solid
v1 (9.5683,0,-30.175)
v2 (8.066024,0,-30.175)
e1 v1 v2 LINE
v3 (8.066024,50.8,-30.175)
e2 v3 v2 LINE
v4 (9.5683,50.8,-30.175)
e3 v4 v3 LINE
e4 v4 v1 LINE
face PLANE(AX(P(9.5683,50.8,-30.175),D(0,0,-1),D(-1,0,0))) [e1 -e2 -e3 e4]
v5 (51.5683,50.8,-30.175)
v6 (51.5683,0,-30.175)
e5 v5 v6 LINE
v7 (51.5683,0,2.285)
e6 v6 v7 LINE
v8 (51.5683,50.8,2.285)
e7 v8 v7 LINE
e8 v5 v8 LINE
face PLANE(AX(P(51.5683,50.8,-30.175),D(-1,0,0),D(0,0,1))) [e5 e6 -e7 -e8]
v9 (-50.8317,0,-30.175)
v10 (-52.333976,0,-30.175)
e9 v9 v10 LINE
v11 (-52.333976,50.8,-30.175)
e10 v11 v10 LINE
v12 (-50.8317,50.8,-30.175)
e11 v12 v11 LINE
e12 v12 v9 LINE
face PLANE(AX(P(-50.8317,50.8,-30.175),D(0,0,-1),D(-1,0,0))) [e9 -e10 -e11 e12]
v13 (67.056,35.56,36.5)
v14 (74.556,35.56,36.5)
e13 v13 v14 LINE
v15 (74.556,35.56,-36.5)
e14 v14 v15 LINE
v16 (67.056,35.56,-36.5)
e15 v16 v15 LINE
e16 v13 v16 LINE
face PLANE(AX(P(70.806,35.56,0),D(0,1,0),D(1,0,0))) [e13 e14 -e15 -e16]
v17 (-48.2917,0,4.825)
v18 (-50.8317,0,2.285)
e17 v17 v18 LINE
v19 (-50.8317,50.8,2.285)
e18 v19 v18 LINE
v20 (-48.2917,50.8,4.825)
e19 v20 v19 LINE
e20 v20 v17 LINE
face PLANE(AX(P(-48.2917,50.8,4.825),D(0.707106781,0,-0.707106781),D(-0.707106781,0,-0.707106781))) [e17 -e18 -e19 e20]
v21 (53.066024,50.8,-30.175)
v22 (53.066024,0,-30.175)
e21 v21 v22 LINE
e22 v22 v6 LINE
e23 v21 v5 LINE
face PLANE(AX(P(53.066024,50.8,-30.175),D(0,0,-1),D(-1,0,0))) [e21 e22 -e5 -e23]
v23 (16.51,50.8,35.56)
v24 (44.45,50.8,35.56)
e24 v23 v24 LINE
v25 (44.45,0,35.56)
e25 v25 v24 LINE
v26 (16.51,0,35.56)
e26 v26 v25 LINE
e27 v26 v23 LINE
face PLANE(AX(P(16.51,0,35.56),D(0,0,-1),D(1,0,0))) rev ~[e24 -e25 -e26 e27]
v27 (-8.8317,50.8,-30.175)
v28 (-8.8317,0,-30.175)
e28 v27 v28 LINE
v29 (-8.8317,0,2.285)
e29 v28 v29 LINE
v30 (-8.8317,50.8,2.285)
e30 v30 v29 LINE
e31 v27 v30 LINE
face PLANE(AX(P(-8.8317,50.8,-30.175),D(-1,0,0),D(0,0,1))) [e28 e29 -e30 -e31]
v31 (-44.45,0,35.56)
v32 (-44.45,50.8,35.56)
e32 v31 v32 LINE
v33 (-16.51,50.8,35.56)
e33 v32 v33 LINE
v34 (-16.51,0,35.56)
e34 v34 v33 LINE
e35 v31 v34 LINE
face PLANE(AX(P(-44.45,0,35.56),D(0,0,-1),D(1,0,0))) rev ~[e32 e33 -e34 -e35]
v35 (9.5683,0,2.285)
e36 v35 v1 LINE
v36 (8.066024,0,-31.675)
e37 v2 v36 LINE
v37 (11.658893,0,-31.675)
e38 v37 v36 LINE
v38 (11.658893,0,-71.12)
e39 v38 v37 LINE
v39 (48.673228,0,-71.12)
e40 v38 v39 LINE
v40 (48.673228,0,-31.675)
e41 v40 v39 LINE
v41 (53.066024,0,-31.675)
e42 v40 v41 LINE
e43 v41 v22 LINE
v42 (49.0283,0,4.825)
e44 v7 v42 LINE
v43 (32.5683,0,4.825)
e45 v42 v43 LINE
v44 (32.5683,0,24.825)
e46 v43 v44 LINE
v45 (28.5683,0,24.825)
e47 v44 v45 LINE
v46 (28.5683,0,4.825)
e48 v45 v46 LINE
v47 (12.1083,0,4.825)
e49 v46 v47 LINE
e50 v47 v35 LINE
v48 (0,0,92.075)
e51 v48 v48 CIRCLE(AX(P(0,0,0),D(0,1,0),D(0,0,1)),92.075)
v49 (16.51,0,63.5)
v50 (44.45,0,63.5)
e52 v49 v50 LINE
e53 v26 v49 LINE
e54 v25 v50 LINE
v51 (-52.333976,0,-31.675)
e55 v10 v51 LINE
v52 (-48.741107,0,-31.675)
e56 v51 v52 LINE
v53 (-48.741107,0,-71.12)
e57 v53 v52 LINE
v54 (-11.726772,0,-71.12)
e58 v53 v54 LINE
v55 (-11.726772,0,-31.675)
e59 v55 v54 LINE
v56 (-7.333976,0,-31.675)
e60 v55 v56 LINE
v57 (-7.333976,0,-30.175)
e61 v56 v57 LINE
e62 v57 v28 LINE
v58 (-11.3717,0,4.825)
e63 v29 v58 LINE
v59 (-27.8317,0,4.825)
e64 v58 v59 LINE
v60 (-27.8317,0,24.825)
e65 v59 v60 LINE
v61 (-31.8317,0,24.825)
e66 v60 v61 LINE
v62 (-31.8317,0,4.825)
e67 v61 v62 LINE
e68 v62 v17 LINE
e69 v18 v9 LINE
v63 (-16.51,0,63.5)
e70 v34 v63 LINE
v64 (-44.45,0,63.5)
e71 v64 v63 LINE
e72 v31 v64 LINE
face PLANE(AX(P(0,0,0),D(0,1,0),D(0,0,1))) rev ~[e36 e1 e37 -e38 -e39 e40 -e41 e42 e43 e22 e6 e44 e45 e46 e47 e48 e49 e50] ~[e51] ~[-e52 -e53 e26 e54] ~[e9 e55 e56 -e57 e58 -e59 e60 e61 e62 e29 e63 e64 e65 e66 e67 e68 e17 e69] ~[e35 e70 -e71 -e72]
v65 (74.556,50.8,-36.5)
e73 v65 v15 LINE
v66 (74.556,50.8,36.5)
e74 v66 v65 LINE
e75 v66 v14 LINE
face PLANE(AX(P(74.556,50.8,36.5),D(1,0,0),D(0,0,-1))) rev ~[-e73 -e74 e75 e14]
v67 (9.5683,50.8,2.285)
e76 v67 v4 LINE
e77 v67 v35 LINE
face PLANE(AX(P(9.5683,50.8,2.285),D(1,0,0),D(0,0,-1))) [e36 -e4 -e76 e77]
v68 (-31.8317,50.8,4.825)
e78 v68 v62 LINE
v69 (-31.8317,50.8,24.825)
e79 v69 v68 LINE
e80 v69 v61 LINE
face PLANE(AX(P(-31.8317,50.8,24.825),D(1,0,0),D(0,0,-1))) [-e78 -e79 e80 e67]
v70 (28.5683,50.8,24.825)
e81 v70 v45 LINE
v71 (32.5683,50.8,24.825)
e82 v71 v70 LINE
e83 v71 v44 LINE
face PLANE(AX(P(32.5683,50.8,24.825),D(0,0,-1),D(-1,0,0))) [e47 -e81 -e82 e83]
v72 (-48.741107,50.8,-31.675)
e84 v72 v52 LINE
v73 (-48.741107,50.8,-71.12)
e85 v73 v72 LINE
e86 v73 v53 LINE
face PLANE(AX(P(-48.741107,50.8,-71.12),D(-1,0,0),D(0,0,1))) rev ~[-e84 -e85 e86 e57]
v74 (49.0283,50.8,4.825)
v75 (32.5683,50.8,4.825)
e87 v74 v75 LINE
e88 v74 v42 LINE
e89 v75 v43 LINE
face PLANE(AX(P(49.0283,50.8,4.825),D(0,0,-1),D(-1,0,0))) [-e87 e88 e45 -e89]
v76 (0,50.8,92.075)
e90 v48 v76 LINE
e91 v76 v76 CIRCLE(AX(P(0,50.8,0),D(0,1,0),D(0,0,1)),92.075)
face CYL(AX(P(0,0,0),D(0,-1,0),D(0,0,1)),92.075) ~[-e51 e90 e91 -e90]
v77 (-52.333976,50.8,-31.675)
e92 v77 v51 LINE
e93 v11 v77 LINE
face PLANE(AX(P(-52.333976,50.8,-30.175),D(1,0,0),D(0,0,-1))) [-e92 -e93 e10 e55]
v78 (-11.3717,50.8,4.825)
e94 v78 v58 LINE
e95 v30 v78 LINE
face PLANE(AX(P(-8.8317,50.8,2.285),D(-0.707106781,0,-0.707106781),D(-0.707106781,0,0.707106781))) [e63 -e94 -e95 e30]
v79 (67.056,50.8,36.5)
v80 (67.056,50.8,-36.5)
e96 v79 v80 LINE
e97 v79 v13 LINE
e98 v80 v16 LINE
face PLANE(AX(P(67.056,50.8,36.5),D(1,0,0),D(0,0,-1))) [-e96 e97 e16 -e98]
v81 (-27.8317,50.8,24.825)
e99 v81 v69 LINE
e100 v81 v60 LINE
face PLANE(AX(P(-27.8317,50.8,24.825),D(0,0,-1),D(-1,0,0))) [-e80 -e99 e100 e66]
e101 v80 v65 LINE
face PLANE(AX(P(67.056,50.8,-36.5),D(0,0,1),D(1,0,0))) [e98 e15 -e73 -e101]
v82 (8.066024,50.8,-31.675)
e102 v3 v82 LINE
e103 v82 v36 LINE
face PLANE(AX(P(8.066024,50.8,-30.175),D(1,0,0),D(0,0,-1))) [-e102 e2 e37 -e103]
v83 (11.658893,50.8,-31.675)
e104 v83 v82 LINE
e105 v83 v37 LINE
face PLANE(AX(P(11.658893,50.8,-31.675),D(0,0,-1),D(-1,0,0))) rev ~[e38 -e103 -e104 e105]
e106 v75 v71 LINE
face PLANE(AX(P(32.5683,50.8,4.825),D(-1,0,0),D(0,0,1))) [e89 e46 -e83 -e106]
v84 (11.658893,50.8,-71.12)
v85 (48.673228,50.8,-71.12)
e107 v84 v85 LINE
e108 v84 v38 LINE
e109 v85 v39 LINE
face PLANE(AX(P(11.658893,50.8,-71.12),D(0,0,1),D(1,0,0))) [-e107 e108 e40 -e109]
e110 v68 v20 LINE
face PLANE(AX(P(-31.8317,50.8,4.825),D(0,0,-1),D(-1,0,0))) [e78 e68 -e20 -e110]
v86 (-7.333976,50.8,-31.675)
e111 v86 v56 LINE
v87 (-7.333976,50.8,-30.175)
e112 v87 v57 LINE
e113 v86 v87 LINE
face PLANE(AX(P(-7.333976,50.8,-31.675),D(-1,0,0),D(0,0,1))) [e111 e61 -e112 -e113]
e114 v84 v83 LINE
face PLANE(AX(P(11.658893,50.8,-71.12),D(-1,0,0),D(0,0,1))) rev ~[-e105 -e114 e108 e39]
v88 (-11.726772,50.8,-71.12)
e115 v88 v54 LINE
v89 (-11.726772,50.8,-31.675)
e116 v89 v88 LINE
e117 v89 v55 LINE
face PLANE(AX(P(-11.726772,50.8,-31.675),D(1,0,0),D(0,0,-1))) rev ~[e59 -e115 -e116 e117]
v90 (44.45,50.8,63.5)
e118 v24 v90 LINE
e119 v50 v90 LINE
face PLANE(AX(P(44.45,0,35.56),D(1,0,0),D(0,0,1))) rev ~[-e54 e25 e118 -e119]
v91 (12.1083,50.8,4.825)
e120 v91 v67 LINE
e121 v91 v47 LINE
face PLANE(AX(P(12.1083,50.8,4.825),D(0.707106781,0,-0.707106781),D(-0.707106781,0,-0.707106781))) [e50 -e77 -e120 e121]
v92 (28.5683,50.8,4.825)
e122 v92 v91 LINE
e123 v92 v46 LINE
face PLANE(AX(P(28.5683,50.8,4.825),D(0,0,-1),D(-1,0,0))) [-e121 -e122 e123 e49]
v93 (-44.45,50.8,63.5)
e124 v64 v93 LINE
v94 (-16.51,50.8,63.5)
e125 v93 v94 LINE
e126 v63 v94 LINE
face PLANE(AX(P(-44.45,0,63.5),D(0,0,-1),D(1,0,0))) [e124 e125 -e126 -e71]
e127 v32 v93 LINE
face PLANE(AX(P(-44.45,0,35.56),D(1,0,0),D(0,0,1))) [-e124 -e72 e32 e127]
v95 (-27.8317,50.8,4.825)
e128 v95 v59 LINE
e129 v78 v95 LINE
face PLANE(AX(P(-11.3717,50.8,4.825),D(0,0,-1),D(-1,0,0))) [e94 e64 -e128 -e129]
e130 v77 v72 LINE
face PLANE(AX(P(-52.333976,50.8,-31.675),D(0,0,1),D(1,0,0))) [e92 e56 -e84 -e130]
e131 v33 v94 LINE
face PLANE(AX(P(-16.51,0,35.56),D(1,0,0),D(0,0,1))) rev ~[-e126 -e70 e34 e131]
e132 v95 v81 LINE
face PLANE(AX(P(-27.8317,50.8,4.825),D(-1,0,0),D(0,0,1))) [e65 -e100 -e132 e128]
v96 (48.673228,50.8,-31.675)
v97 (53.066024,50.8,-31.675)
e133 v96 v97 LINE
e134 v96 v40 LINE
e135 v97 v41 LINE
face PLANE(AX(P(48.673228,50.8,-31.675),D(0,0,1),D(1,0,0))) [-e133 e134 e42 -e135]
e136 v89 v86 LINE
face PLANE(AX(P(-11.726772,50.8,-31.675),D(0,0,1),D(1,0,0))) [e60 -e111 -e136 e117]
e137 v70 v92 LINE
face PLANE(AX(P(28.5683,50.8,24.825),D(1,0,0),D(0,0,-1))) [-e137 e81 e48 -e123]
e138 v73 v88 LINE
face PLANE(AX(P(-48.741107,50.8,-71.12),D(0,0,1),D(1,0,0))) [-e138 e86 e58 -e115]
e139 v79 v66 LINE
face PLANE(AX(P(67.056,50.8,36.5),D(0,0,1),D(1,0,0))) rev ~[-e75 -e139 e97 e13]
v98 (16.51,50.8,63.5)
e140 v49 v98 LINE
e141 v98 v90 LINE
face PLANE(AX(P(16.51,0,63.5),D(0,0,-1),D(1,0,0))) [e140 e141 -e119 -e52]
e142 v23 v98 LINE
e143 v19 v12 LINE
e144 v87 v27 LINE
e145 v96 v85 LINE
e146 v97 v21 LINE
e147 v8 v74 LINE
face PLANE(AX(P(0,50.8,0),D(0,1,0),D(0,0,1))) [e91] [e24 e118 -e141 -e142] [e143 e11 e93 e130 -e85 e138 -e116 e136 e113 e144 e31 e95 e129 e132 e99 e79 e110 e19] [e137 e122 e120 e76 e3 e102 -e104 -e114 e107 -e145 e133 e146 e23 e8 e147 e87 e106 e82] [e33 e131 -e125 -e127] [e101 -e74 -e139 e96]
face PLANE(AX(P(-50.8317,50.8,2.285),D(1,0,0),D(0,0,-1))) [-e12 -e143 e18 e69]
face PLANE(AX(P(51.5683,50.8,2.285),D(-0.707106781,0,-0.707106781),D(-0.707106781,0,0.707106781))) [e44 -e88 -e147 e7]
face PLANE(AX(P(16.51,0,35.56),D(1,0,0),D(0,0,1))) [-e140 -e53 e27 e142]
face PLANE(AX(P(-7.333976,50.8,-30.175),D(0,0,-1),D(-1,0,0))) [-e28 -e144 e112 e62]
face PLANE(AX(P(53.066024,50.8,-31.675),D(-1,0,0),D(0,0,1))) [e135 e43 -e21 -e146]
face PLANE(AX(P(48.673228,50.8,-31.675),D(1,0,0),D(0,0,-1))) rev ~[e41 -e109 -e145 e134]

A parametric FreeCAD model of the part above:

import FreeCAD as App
import Part
import Sketcher
from FreeCAD import Vector
Q = App.Units.Quantity


def add_polygon(sketch, points):
    """Adds a closed chain of lines whose ends are joined by coincident constraints."""
    first, n = sketch.GeometryCount, len(points)
    for a, b in zip(points, points[1:] + points[:1]):
        sketch.addGeometry(Part.LineSegment(App.Vector(*a, 0), App.Vector(*b, 0)), False)
    for i in range(n):
        sketch.addConstraint(Sketcher.Constraint("Coincident", first + i, 2, first + (i + 1) % n, 1))

doc = App.newDocument("Part")
params = doc.addObject("Spreadsheet::Sheet", "Params")
for row, (alias, value) in enumerate([
    ("sketch1_diameter", "184.15 mm"),
    ("pad1_length", "50.8 mm"),
    ("sketch2_width", "27.94 mm"),
    ("pocket1_length", "50.8 mm"),
    ("sketch3_width", "4 mm"),
    ("sketch3_height", "20 mm"),
    ("sketch3_height2", "1.5 mm"),
    ("sketch3_width2", "16.46 mm"),
    ("pocket2_length", "50.8 mm"),
    ("sketch4_height", "73 mm"),
    ("sketch4_width", "7.5 mm"),
    ("pocket3_length", "15.24 mm"),
], start=1):
    params.set(f"A{row}", alias)
    params.set(f"B{row}", "=" + value)
    params.setAlias(f"B{row}", alias)

body = doc.addObject("PartDesign::Body", "Body")

sketch1 = body.newObject("Sketcher::SketchObject", "Sketch")
sketch1.AttachmentSupport = (doc.getObject("XZ_Plane"), [""])
sketch1.MapMode = "FlatFace"
sketch1.addGeometry(Part.Circle(Vector(0, 0, 0), Vector(0, 0, 1), 92), False)
sketch1.addConstraint([
    Sketcher.Constraint("Coincident", 0, 3, -1, 1),
    Sketcher.Constraint("Diameter", 0, Q("184.15 mm")),
])
sketch1.setExpression("Constraints[1]", "Params.sketch1_diameter")
pad1 = body.newObject("PartDesign::Pad", "Pad")
pad1.Profile = sketch1
pad1.setExpression("Length", "Params.pad1_length")
pad1.Reversed = True

sketch2 = body.newObject("Sketcher::SketchObject", "Sketch001")
sketch2.AttachmentSupport = (doc.getObject("XZ_Plane"), [""])
sketch2.MapMode = "FlatFace"
add_polygon(sketch2, [(17, 64), (17, 36), (44, 36), (44, 64)])
add_polygon(sketch2, [(-44, 64), (-44, 36), (-17, 36), (-17, 64)])
sketch2.addConstraint([
    Sketcher.Constraint("Vertical", 0),
    Sketcher.Constraint("Horizontal", 1),
    Sketcher.Constraint("Vertical", 2),
    Sketcher.Constraint("Horizontal", 3),
    Sketcher.Constraint("Vertical", 4),
    Sketcher.Constraint("Horizontal", 5),
    Sketcher.Constraint("Vertical", 6),
    Sketcher.Constraint("Horizontal", 7),
    Sketcher.Constraint("Symmetric", 1, 2, 4, 2, -2),
    Sketcher.Constraint("Symmetric", 3, 2, 6, 2, -2),
    Sketcher.Constraint("Equal", 7, 0),
    Sketcher.Constraint("DistanceX", 1, 1, 1, 2, Q("27.94 mm")),
    Sketcher.Constraint("DistanceY", -1, 1, 2, 2, Q("63.5 mm")),
    Sketcher.Constraint("DistanceX", 4, 2, 1, 2, Q("88.9 mm")),
])
sketch2.setExpression("Constraints[19]", "Params.sketch2_width")
pocket1 = body.newObject("PartDesign::Pocket", "Pocket")
pocket1.Profile = sketch2
pocket1.setExpression("Length", "Params.pocket1_length")

sketch3 = body.newObject("Sketcher::SketchObject", "Sketch002")
sketch3.AttachmentSupport = (doc.getObject("XZ_Plane"), [""])
sketch3.MapMode = "FlatFace"
sketch3.AttachmentOffset = App.Placement(Vector(0, 0, -50.8), App.Rotation())
add_polygon(sketch3, [(48.7, -31.7), (48.7, -71.1), (11.7, -71.1), (11.7, -31.7), (8.1, -31.7), (8.1, -30.2), (9.6, -30.2), (9.6, 2.3), (12.1, 4.8), (28.6, 4.8), (28.6, 24.8), (32.6, 24.8), (32.6, 4.8), (49, 4.8), (51.6, 2.3), (51.6, -30.2), (53.1, -30.2), (53.1, -31.7)])
add_polygon(sketch3, [(-11.4, 4.8), (-8.8, 2.3), (-8.8, -30.2), (-7.3, -30.2), (-7.3, -31.7), (-11.7, -31.7), (-11.7, -71.1), (-48.7, -71.1), (-48.7, -31.7), (-52.3, -31.7), (-52.3, -30.2), (-50.8, -30.2), (-50.8, 2.3), (-48.3, 4.8), (-31.8, 4.8), (-31.8, 24.8), (-27.8, 24.8), (-27.8, 4.8)])
sketch3.addConstraint([
    Sketcher.Constraint("Vertical", 0),
    Sketcher.Constraint("Horizontal", 1),
    Sketcher.Constraint("Vertical", 2),
    Sketcher.Constraint("Horizontal", 3),
    Sketcher.Constraint("Vertical", 4),
    Sketcher.Constraint("Horizontal", 5),
    Sketcher.Constraint("Vertical", 6),
    Sketcher.Constraint("Horizontal", 8),
    Sketcher.Constraint("Vertical", 9),
    Sketcher.Constraint("Horizontal", 10),
    Sketcher.Constraint("Vertical", 11),
    Sketcher.Constraint("Horizontal", 12),
    Sketcher.Constraint("Vertical", 14),
    Sketcher.Constraint("Horizontal", 15),
    Sketcher.Constraint("Vertical", 16),
    Sketcher.Constraint("Horizontal", 17),
    Sketcher.Constraint("Vertical", 19),
    Sketcher.Constraint("Horizontal", 20),
    Sketcher.Constraint("Vertical", 21),
    Sketcher.Constraint("Horizontal", 22),
    Sketcher.Constraint("Vertical", 23),
    Sketcher.Constraint("Horizontal", 24),
    Sketcher.Constraint("Vertical", 25),
    Sketcher.Constraint("Horizontal", 26),
    Sketcher.Constraint("Vertical", 27),
    Sketcher.Constraint("Horizontal", 28),
    Sketcher.Constraint("Vertical", 29),
    Sketcher.Constraint("Horizontal", 31),
    Sketcher.Constraint("Vertical", 32),
    Sketcher.Constraint("Horizontal", 33),
    Sketcher.Constraint("Vertical", 34),
    Sketcher.Constraint("Horizontal", 35),
    Sketcher.Constraint("Perpendicular", 7, 13),
    Sketcher.Constraint("Parallel", 13, 18),
    Sketcher.Constraint("Perpendicular", 18, 30),
    Sketcher.Constraint("Horizontal", 8, 2, 11, 2),
    Sketcher.Constraint("Horizontal", 6, 2, 13, 2),
    Sketcher.Constraint("Horizontal", 5, 2, 14, 2),
    Sketcher.Constraint("Horizontal", 3, 2, 16, 2),
    Sketcher.Constraint("Horizontal", 13, 2, 18, 2),
    Sketcher.Constraint("Horizontal", 15, 2, 19, 2),
    Sketcher.Constraint("Horizontal", 17, 2, 21, 2),
    Sketcher.Constraint("Horizontal", 1, 2, 23, 2),
    Sketcher.Constraint("Horizontal", 22, 2, 25, 2),
    Sketcher.Constraint("Horizontal", 20, 2, 27, 2),
    Sketcher.Constraint("Horizontal", 18, 2, 29, 2),
    Sketcher.Constraint("Horizontal", 12, 2, 30, 2),
    Sketcher.Constraint("Horizontal", 10, 2, 32, 2),
    Sketcher.Constraint("Horizontal", 31, 2, 34, 2),
    Sketcher.Constraint("Equal", 8, 12),
    Sketcher.Constraint("Equal", 15, 20),
    Sketcher.Constraint("Equal", 17, 22),
    Sketcher.Constraint("Equal", 1, 24),
    Sketcher.Constraint("Equal", 3, 26),
    Sketcher.Constraint("Equal", 5, 28),
    Sketcher.Constraint("Equal", 12, 31),
    Sketcher.Constraint("Equal", 10, 33),
    Sketcher.Constraint("Equal", 7, 13),
    Sketcher.Constraint("DistanceX", 10, 1, 10, 2, Q("4 mm")),
    Sketcher.Constraint("DistanceY", 9, 1, 9, 2, Q("20 mm")),
    Sketcher.Constraint("DistanceY", 4, 1, 4, 2, Q("1.5 mm")),
    Sketcher.Constraint("DistanceY", 5, 2, 7, 2, Q("35 mm")),
    Sketcher.Constraint("DistanceX", 6, 2, 8, 2, Q("19 mm")),
    Sketcher.Constraint("DistanceX", 26, 2, 21, 2, Q("45 mm")),
    Sketcher.Constraint("DistanceX", 8, 1, 8, 2, Q("16.46 mm")),
    Sketcher.Constraint("DistanceX", 18, 2, 6, 2, Q("18.4 mm")),
    Sketcher.Constraint("DistanceY", 0, 2, 0, 1, Q("39.445 mm")),
    Sketcher.Constraint("DistanceY", 0, 2, -1, 1, Q("71.12 mm")),
    Sketcher.Constraint("DistanceX", 3, 2, 3, 1, Q("3.592869 mm")),
    Sketcher.Constraint("DistanceX", -1, 1, 5, 2, Q("9.5683 mm")),
    Sketcher.Constraint("DistanceX", 1, 2, 1, 1, Q("37.014335 mm")),
    Sketcher.Constraint("DistanceX", 5, 1, 5, 2, Q("1.502276 mm")),
])
sketch3.setExpression("Constraints[94]", "Params.sketch3_width")
sketch3.setExpression("Constraints[95]", "Params.sketch3_height")
sketch3.setExpression("Constraints[96]", "Params.sketch3_height2")
sketch3.setExpression("Constraints[100]", "Params.sketch3_width2")
pocket2 = body.newObject("PartDesign::Pocket", "Pocket001")
pocket2.Profile = sketch3
pocket2.setExpression("Length", "Params.pocket2_length")
pocket2.Reversed = True

sketch4 = body.newObject("Sketcher::SketchObject", "Sketch003")
sketch4.AttachmentSupport = (doc.getObject("XZ_Plane"), [""])
sketch4.MapMode = "FlatFace"
sketch4.AttachmentOffset = App.Placement(Vector(0, 0, -50.8), App.Rotation())
add_polygon(sketch4, [(67, -36), (67, 36), (75, 36), (75, -36)])
sketch4.addConstraint([
    Sketcher.Constraint("Vertical", 0),
    Sketcher.Constraint("Horizontal", 1),
    Sketcher.Constraint("Vertical", 2),
    Sketcher.Constraint("Horizontal", 3),
    Sketcher.Constraint("DistanceY", 0, 1, 0, 2, Q("73 mm")),
    Sketcher.Constraint("DistanceX", 1, 1, 1, 2, Q("7.5 mm")),
    Sketcher.Constraint("DistanceY", -1, 1, 0, 2, Q("36.5 mm")),
    Sketcher.Constraint("DistanceX", -1, 1, 0, 2, Q("67.056 mm")),
])
sketch4.setExpression("Constraints[8]", "Params.sketch4_height")
sketch4.setExpression("Constraints[9]", "Params.sketch4_width")
pocket3 = body.newObject("PartDesign::Pocket", "Pocket002")
pocket3.Profile = sketch4
pocket3.setExpression("Length", "Params.pocket3_length")
pocket3.Reversed = True

doc.recompute()
